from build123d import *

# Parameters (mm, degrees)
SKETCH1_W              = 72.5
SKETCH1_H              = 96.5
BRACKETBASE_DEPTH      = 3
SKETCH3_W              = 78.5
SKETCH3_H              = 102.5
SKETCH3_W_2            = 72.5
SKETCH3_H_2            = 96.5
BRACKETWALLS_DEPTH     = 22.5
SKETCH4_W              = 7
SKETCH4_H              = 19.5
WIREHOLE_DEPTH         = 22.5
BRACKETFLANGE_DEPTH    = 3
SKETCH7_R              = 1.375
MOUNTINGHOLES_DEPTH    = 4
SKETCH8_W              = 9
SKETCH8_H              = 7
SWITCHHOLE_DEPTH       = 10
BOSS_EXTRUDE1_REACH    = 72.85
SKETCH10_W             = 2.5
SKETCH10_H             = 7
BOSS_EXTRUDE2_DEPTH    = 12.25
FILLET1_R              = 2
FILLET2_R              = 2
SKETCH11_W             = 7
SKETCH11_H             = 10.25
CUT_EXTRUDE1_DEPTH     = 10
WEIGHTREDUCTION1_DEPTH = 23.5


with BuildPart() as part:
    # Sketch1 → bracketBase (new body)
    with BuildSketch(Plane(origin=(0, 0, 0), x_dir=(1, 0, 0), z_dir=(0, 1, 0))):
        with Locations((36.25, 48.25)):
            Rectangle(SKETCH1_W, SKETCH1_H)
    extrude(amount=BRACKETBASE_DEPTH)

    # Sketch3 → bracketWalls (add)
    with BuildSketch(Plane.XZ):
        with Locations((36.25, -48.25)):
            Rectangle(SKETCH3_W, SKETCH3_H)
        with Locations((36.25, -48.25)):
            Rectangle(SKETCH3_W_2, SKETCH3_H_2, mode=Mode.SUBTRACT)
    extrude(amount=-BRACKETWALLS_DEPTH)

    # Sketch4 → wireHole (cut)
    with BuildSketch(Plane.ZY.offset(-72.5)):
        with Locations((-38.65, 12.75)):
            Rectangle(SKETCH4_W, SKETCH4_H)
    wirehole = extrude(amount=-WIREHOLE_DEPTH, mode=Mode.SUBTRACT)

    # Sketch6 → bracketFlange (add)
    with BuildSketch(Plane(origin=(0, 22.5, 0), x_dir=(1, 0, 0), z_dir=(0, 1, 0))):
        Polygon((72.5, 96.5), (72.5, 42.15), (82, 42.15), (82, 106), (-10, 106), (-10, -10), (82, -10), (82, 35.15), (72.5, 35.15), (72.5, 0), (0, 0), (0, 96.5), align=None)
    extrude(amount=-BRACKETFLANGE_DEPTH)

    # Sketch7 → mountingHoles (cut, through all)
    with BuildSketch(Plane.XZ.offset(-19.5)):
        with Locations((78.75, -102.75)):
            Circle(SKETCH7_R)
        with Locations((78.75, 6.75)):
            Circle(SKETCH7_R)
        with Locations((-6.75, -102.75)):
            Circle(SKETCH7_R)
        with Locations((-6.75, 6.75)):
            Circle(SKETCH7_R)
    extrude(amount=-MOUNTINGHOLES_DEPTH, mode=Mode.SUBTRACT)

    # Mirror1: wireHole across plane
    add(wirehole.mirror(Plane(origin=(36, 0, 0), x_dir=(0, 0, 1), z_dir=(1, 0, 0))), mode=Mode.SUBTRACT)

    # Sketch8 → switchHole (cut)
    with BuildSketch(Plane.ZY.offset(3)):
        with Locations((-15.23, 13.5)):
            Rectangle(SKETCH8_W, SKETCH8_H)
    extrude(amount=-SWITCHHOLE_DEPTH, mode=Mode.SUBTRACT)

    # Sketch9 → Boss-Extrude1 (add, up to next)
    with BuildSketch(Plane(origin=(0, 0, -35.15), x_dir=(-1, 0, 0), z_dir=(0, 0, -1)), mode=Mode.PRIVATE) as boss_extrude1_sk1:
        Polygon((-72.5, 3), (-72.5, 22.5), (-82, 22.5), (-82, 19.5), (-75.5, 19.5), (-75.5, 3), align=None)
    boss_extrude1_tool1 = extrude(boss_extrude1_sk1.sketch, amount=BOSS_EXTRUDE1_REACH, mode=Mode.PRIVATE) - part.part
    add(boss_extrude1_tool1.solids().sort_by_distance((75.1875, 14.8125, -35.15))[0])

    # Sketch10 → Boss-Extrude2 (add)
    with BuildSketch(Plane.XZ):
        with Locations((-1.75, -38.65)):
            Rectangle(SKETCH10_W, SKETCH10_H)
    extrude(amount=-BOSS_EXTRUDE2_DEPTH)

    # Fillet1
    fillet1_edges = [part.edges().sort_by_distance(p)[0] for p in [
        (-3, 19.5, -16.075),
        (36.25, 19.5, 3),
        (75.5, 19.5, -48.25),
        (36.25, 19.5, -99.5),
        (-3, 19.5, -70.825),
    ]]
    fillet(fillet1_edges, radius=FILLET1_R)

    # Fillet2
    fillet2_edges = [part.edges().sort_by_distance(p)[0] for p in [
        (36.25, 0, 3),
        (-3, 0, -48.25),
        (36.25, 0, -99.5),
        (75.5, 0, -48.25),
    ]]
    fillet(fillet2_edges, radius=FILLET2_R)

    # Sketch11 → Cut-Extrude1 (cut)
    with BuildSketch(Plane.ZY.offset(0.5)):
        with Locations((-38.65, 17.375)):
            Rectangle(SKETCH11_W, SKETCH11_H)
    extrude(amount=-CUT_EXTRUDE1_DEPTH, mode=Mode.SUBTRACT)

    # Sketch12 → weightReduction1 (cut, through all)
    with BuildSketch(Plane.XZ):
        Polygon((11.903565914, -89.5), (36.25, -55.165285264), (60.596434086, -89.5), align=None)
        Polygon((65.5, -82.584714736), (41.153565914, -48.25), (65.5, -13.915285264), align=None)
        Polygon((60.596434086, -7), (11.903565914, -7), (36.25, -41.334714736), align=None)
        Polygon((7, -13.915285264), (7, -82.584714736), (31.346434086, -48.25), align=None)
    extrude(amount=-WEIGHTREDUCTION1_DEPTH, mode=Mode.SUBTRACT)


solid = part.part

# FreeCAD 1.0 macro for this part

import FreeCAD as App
import Part
import Sketcher
Q = App.Units.Quantity


def edges_at(feature, points):
    """Names of the edges that pass closest to the given points."""
    edges = feature.Shape.Edges
    near = lambda p: min(range(len(edges)), key=lambda i: edges[i].distToShape(Part.Vertex(*p))[0])
    return sorted({f"Edge{near(p) + 1}" for p in points})

doc = App.newDocument("Part")
body = doc.addObject("PartDesign::Body", "Body")

sketch1 = body.newObject("Sketcher::SketchObject", "Sketch")
sketch1.AttachmentSupport = (doc.getObject("XZ_Plane"), [""])
sketch1.MapMode = "FlatFace"
sketch1.addGeometry([
    Part.LineSegment(App.Vector(0, -96.5, 0), App.Vector(0, 0, 0)),
    Part.LineSegment(App.Vector(0, 0, 0), App.Vector(72.5, 0, 0)),
    Part.LineSegment(App.Vector(72.5, 0, 0), App.Vector(72.5, -96.5, 0)),
    Part.LineSegment(App.Vector(72.5, -96.5, 0), App.Vector(0, -96.5, 0)),
], False)
sketch1.addConstraint([
    Sketcher.Constraint("Coincident", 0, 2, 1, 1),
    Sketcher.Constraint("Coincident", 1, 2, 2, 1),
    Sketcher.Constraint("Coincident", 2, 2, 3, 1),
    Sketcher.Constraint("Coincident", 3, 2, 0, 1),
    Sketcher.Constraint("Vertical", 0),
    Sketcher.Constraint("Horizontal", 1),
    Sketcher.Constraint("Vertical", 2),
    Sketcher.Constraint("Horizontal", 3),
    Sketcher.Constraint("Coincident", 0, 2, -1, 1),
    Sketcher.Constraint("DistanceX", 1, 1, 1, 2, Q("72.5 mm")),
    Sketcher.Constraint("DistanceY", 0, 1, 0, 2, Q("96.5 mm")),
])
pad1 = body.newObject("PartDesign::Pad", "Pad")
pad1.Profile = sketch1
pad1.Length = 3
pad1.Reversed = True

sketch2 = body.newObject("Sketcher::SketchObject", "Sketch001")
sketch2.AttachmentSupport = (doc.getObject("XZ_Plane"), [""])
sketch2.MapMode = "FlatFace"
sketch2.addGeometry([
    Part.LineSegment(App.Vector(-3, 3, 0), App.Vector(-3, -99.5, 0)),
    Part.LineSegment(App.Vector(-3, -99.5, 0), App.Vector(75.5, -99.5, 0)),
    Part.LineSegment(App.Vector(75.5, -99.5, 0), App.Vector(75.5, 3, 0)),
    Part.LineSegment(App.Vector(75.5, 3, 0), App.Vector(-3, 3, 0)),
    Part.LineSegment(App.Vector(72.5, -96.5, 0), App.Vector(0, -96.5, 0)),
    Part.LineSegment(App.Vector(0, -96.5, 0), App.Vector(0, 0, 0)),
    Part.LineSegment(App.Vector(0, 0, 0), App.Vector(72.5, 0, 0)),
    Part.LineSegment(App.Vector(72.5, 0, 0), App.Vector(72.5, -96.5, 0)),
], False)
sketch2.addConstraint([
    Sketcher.Constraint("Coincident", 0, 2, 1, 1),
    Sketcher.Constraint("Coincident", 1, 2, 2, 1),
    Sketcher.Constraint("Coincident", 2, 2, 3, 1),
    Sketcher.Constraint("Coincident", 3, 2, 0, 1),
    Sketcher.Constraint("Coincident", 4, 2, 5, 1),
    Sketcher.Constraint("Coincident", 5, 2, 6, 1),
    Sketcher.Constraint("Coincident", 6, 2, 7, 1),
    Sketcher.Constraint("Coincident", 7, 2, 4, 1),
    Sketcher.Constraint("Vertical", 0),
    Sketcher.Constraint("Horizontal", 1),
    Sketcher.Constraint("Vertical", 2),
    Sketcher.Constraint("Horizontal", 3),
    Sketcher.Constraint("Horizontal", 4),
    Sketcher.Constraint("Vertical", 5),
    Sketcher.Constraint("Horizontal", 6),
    Sketcher.Constraint("Vertical", 7),
    Sketcher.Constraint("Coincident", 5, 2, -1, 1),
    Sketcher.Constraint("DistanceX", 1, 1, 1, 2, Q("78.5 mm")),
    Sketcher.Constraint("DistanceX", 4, 2, 4, 1, Q("72.5 mm")),
    Sketcher.Constraint("DistanceY", 0, 2, 0, 1, Q("102.5 mm")),
    Sketcher.Constraint("DistanceY", 5, 1, 5, 2, Q("96.5 mm")),
    Sketcher.Constraint("DistanceX", 0, 2, -1, 1, Q("3 mm")),
    Sketcher.Constraint("DistanceY", -1, 1, 2, 2, Q("3 mm")),
])
pad2 = body.newObject("PartDesign::Pad", "Pad001")
pad2.Profile = sketch2
pad2.Length = 22.5
pad2.Reversed = True

sketch3 = body.newObject("Sketcher::SketchObject", "Sketch002")
sketch3.AttachmentSupport = (doc.getObject("YZ_Plane"), [""])
sketch3.MapMode = "FlatFace"
sketch3.AttachmentOffset = App.Placement(App.Vector(0, 0, 72.5), App.Rotation())
sketch3.addGeometry([
    Part.LineSegment(App.Vector(22.5, -42.15, 0), App.Vector(3, -42.15, 0)),
    Part.LineSegment(App.Vector(3, -42.15, 0), App.Vector(3, -35.15, 0)),
    Part.LineSegment(App.Vector(3, -35.15, 0), App.Vector(22.5, -35.15, 0)),
    Part.LineSegment(App.Vector(22.5, -35.15, 0), App.Vector(22.5, -42.15, 0)),
], False)
sketch3.addConstraint([
    Sketcher.Constraint("Coincident", 0, 2, 1, 1),
    Sketcher.Constraint("Coincident", 1, 2, 2, 1),
    Sketcher.Constraint("Coincident", 2, 2, 3, 1),
    Sketcher.Constraint("Coincident", 3, 2, 0, 1),
    Sketcher.Constraint("Horizontal", 0),
    Sketcher.Constraint("Vertical", 1),
    Sketcher.Constraint("Horizontal", 2),
    Sketcher.Constraint("Vertical", 3),
    Sketcher.Constraint("DistanceY", 1, 1, 1, 2, Q("7 mm")),
    Sketcher.Constraint("DistanceX", 0, 2, 0, 1, Q("19.5 mm")),
    Sketcher.Constraint("DistanceX", -1, 1, 0, 2, Q("3 mm")),
    Sketcher.Constraint("DistanceY", 0, 2, -1, 1, Q("42.15 mm")),
])
pocket1 = body.newObject("PartDesign::Pocket", "Pocket")
pocket1.Profile = sketch3
pocket1.Length = 22.5
pocket1.Reversed = True

sketch4 = body.newObject("Sketcher::SketchObject", "Sketch003")
sketch4.AttachmentSupport = (doc.getObject("XZ_Plane"), [""])
sketch4.MapMode = "FlatFace"
sketch4.AttachmentOffset = App.Placement(App.Vector(0, 0, -22.5), App.Rotation())
sketch4.addGeometry([
    Part.LineSegment(App.Vector(72.5, -96.5, 0), App.Vector(72.5, -42.15, 0)),
    Part.LineSegment(App.Vector(72.5, -42.15, 0), App.Vector(82, -42.15, 0)),
    Part.LineSegment(App.Vector(82, -42.15, 0), App.Vector(82, -106, 0)),
    Part.LineSegment(App.Vector(82, -106, 0), App.Vector(-10, -106, 0)),
    Part.LineSegment(App.Vector(-10, -106, 0), App.Vector(-10, 10, 0)),
    Part.LineSegment(App.Vector(-10, 10, 0), App.Vector(82, 10, 0)),
    Part.LineSegment(App.Vector(82, 10, 0), App.Vector(82, -35.15, 0)),
    Part.LineSegment(App.Vector(82, -35.15, 0), App.Vector(72.5, -35.15, 0)),
    Part.LineSegment(App.Vector(72.5, -35.15, 0), App.Vector(72.5, 0, 0)),
    Part.LineSegment(App.Vector(72.5, 0, 0), App.Vector(0, 0, 0)),
    Part.LineSegment(App.Vector(0, 0, 0), App.Vector(0, -96.5, 0)),
    Part.LineSegment(App.Vector(0, -96.5, 0), App.Vector(72.5, -96.5, 0)),
], False)
sketch4.addConstraint([
    Sketcher.Constraint("Coincident", 0, 2, 1, 1),
    Sketcher.Constraint("Coincident", 1, 2, 2, 1),
    Sketcher.Constraint("Coincident", 2, 2, 3, 1),
    Sketcher.Constraint("Coincident", 3, 2, 4, 1),
    Sketcher.Constraint("Coincident", 4, 2, 5, 1),
    Sketcher.Constraint("Coincident", 5, 2, 6, 1),
    Sketcher.Constraint("Coincident", 6, 2, 7, 1),
    Sketcher.Constraint("Coincident", 7, 2, 8, 1),
    Sketcher.Constraint("Coincident", 8, 2, 9, 1),
    Sketcher.Constraint("Coincident", 9, 2, 10, 1),
    Sketcher.Constraint("Coincident", 10, 2, 11, 1),
    Sketcher.Constraint("Coincident", 11, 2, 0, 1),
    Sketcher.Constraint("Vertical", 0),
    Sketcher.Constraint("Horizontal", 1),
    Sketcher.Constraint("Vertical", 2),
    Sketcher.Constraint("Horizontal", 3),
    Sketcher.Constraint("Vertical", 4),
    Sketcher.Constraint("Horizontal", 5),
    Sketcher.Constraint("Vertical", 6),
    Sketcher.Constraint("Horizontal", 7),
    Sketcher.Constraint("Vertical", 8),
    Sketcher.Constraint("Horizontal", 9),
    Sketcher.Constraint("Vertical", 10),
    Sketcher.Constraint("Horizontal", 11),
    Sketcher.Constraint("Coincident", 9, 2, -1, 1),
    Sketcher.Constraint("Vertical", 2, 2, 5, 2),
    Sketcher.Constraint("Vertical", 0, 2, 7, 2),
    Sketcher.Constraint("DistanceX", 3, 2, 3, 1, Q("92 mm")),
    Sketcher.Constraint("DistanceY", 4, 1, 4, 2, Q("116 mm")),
    Sketcher.Constraint("DistanceX", 1, 1, 1, 2, Q("9.5 mm")),
    Sketcher.Constraint("DistanceX", 9, 2, 9, 1, Q("72.5 mm")),
    Sketcher.Constraint("DistanceY", 10, 2, 10, 1, Q("96.5 mm")),
    Sketcher.Constraint("DistanceY", 2, 2, -1, 1, Q("106 mm")),
    Sketcher.Constraint("DistanceY", 1, 2, 6, 2, Q("7 mm")),
    Sketcher.Constraint("DistanceY", 0, 1, 0, 2, Q("54.35 mm")),
])
pad3 = body.newObject("PartDesign::Pad", "Pad002")
pad3.Profile = sketch4
pad3.Length = 3

sketch5 = body.newObject("Sketcher::SketchObject", "Sketch004")
sketch5.AttachmentSupport = (doc.getObject("XZ_Plane"), [""])
sketch5.MapMode = "FlatFace"
sketch5.AttachmentOffset = App.Placement(App.Vector(0, 0, -19.5), App.Rotation())
sketch5.addGeometry([
    Part.Circle(App.Vector(78.75, -102.75, 0), App.Vector(0, 0, 1), 1.375),
    Part.Circle(App.Vector(78.75, 6.75, 0), App.Vector(0, 0, 1), 1.375),
    Part.Circle(App.Vector(-6.75, -102.75, 0), App.Vector(0, 0, 1), 1.375),
    Part.Circle(App.Vector(-6.75, 6.75, 0), App.Vector(0, 0, 1), 1.375),
], False)
sketch5.addConstraint([
    Sketcher.Constraint("Equal", 0, 1),
    Sketcher.Constraint("Equal", 1, 2),
    Sketcher.Constraint("Equal", 2, 3),
    Sketcher.Constraint("Horizontal", 0, 3, 2, 3),
    Sketcher.Constraint("Horizontal", 1, 3, 3, 3),
    Sketcher.Constraint("Vertical", 0, 3, 1, 3),
    Sketcher.Constraint("Vertical", 2, 3, 3, 3),
    Sketcher.Constraint("Diameter", 0, Q("2.75 mm")),
    Sketcher.Constraint("DistanceY", 0, 3, 1, 3, Q("109.5 mm")),
    Sketcher.Constraint("DistanceX", 2, 3, 0, 3, Q("85.5 mm")),
    Sketcher.Constraint("DistanceX", -1, 1, 0, 3, Q("78.75 mm")),
    Sketcher.Constraint("DistanceY", 0, 3, -1, 1, Q("102.75 mm")),
])
pocket2 = body.newObject("PartDesign::Pocket", "Pocket001")
pocket2.Profile = sketch5
pocket2.Type = "ThroughAll"
doc.recompute()

datumplane = body.newObject("PartDesign::Plane", "DatumPlane")
datumplane.AttachmentSupport = (doc.getObject("YZ_Plane"), [""])
datumplane.MapMode = "FlatFace"
datumplane.AttachmentOffset = App.Placement(App.Vector(0, 0, 36), App.Rotation())
mirrored = body.newObject("PartDesign::Mirrored", "Mirrored")
mirrored.Originals = [pocket1]
mirrored.MirrorPlane = (datumplane, [""])
body.Tip = mirrored

sketch6 = body.newObject("Sketcher::SketchObject", "Sketch005")
sketch6.AttachmentSupport = (doc.getObject("YZ_Plane"), [""])
sketch6.MapMode = "FlatFace"
sketch6.AttachmentOffset = App.Placement(App.Vector(0, 0, -3), App.Rotation())
sketch6.addGeometry([
    Part.LineSegment(App.Vector(17, -19.73, 0), App.Vector(10, -19.73, 0)),
    Part.LineSegment(App.Vector(10, -19.73, 0), App.Vector(10, -10.73, 0)),
    Part.LineSegment(App.Vector(10, -10.73, 0), App.Vector(17, -10.73, 0)),
    Part.LineSegment(App.Vector(17, -10.73, 0), App.Vector(17, -19.73, 0)),
], False)
sketch6.addConstraint([
    Sketcher.Constraint("Coincident", 0, 2, 1, 1),
    Sketcher.Constraint("Coincident", 1, 2, 2, 1),
    Sketcher.Constraint("Coincident", 2, 2, 3, 1),
    Sketcher.Constraint("Coincident", 3, 2, 0, 1),
    Sketcher.Constraint("Horizontal", 0),
    Sketcher.Constraint("Vertical", 1),
    Sketcher.Constraint("Horizontal", 2),
    Sketcher.Constraint("Vertical", 3),
    Sketcher.Constraint("DistanceX", 0, 2, 0, 1, Q("7 mm")),
    Sketcher.Constraint("DistanceY", 1, 1, 1, 2, Q("9 mm")),
    Sketcher.Constraint("DistanceX", -1, 1, 0, 2, Q("10 mm")),
    Sketcher.Constraint("DistanceY", 0, 2, -1, 1, Q("19.73 mm")),
])
pocket3 = body.newObject("PartDesign::Pocket", "Pocket002")
pocket3.Profile = sketch6
pocket3.Length = 10
pocket3.Reversed = True

sketch7 = body.newObject("Sketcher::SketchObject", "Sketch006")
sketch7.AttachmentSupport = (doc.getObject("XY_Plane"), [""])
sketch7.MapMode = "FlatFace"
sketch7.AttachmentOffset = App.Placement(App.Vector(0, 0, -35.15), App.Rotation())
sketch7.addGeometry([
    Part.LineSegment(App.Vector(72.5, 3, 0), App.Vector(72.5, 22.5, 0)),
    Part.LineSegment(App.Vector(72.5, 22.5, 0), App.Vector(82, 22.5, 0)),
    Part.LineSegment(App.Vector(82, 22.5, 0), App.Vector(82, 19.5, 0)),
    Part.LineSegment(App.Vector(82, 19.5, 0), App.Vector(75.5, 19.5, 0)),
    Part.LineSegment(App.Vector(75.5, 19.5, 0), App.Vector(75.5, 3, 0)),
    Part.LineSegment(App.Vector(75.5, 3, 0), App.Vector(72.5, 3, 0)),
], False)
sketch7.addConstraint([
    Sketcher.Constraint("Coincident", 0, 2, 1, 1),
    Sketcher.Constraint("Coincident", 1, 2, 2, 1),
    Sketcher.Constraint("Coincident", 2, 2, 3, 1),
    Sketcher.Constraint("Coincident", 3, 2, 4, 1),
    Sketcher.Constraint("Coincident", 4, 2, 5, 1),
    Sketcher.Constraint("Coincident", 5, 2, 0, 1),
    Sketcher.Constraint("Vertical", 0),
    Sketcher.Constraint("Horizontal", 1),
    Sketcher.Constraint("Vertical", 2),
    Sketcher.Constraint("Horizontal", 3),
    Sketcher.Constraint("Vertical", 4),
    Sketcher.Constraint("Horizontal", 5),
    Sketcher.Constraint("Equal", 5, 2),
    Sketcher.Constraint("DistanceX", 5, 2, 5, 1, Q("3 mm")),
    Sketcher.Constraint("DistanceX", 1, 1, 1, 2, Q("9.5 mm")),
    Sketcher.Constraint("DistanceY", 0, 1, 0, 2, Q("19.5 mm")),
    Sketcher.Constraint("DistanceX", -1, 1, 1, 2, Q("82 mm")),
    Sketcher.Constraint("DistanceY", -1, 1, 4, 2, Q("3 mm")),
])
pad4 = body.newObject("PartDesign::Pad", "Pad003")
pad4.Profile = sketch7
pad4.Type = "UpToFirst"
pad4.Reversed = True

sketch8 = body.newObject("Sketcher::SketchObject", "Sketch007")
sketch8.AttachmentSupport = (doc.getObject("XZ_Plane"), [""])
sketch8.MapMode = "FlatFace"
sketch8.addGeometry([
    Part.LineSegment(App.Vector(-3, -35.15, 0), App.Vector(-3, -42.15, 0)),
    Part.LineSegment(App.Vector(-3, -42.15, 0), App.Vector(-0.5, -42.15, 0)),
    Part.LineSegment(App.Vector(-0.5, -42.15, 0), App.Vector(-0.5, -35.15, 0)),
    Part.LineSegment(App.Vector(-0.5, -35.15, 0), App.Vector(-3, -35.15, 0)),
], False)
sketch8.addConstraint([
    Sketcher.Constraint("Coincident", 0, 2, 1, 1),
    Sketcher.Constraint("Coincident", 1, 2, 2, 1),
    Sketcher.Constraint("Coincident", 2, 2, 3, 1),
    Sketcher.Constraint("Coincident", 3, 2, 0, 1),
    Sketcher.Constraint("Vertical", 0),
    Sketcher.Constraint("Horizontal", 1),
    Sketcher.Constraint("Vertical", 2),
    Sketcher.Constraint("Horizontal", 3),
    Sketcher.Constraint("DistanceY", 0, 2, 0, 1, Q("7 mm")),
    Sketcher.Constraint("DistanceX", 1, 1, 1, 2, Q("2.5 mm")),
    Sketcher.Constraint("DistanceX", 0, 2, -1, 1, Q("3 mm")),
    Sketcher.Constraint("DistanceY", 0, 2, -1, 1, Q("42.15 mm")),
])
pad5 = body.newObject("PartDesign::Pad", "Pad004")
pad5.Profile = sketch8
pad5.Length = 12.25
pad5.Reversed = True
doc.recompute()

fillet = body.newObject("PartDesign::Fillet", "Fillet")
fillet.Base = (pad5, edges_at(pad5, [
    (-3, 19.5, -16.075),
    (36.25, 19.5, 3),
    (75.5, 19.5, -48.25),
    (36.25, 19.5, -99.5),
    (-3, 19.5, -70.825),
]))
fillet.Radius = 2
doc.recompute()

fillet2 = body.newObject("PartDesign::Fillet", "Fillet001")
fillet2.Base = (fillet, edges_at(fillet, [
    (36.25, 0, 3),
    (-3, 0, -48.25),
    (36.25, 0, -99.5),
    (75.5, 0, -48.25),
]))
fillet2.Radius = 2

sketch9 = body.newObject("Sketcher::SketchObject", "Sketch008")
sketch9.AttachmentSupport = (doc.getObject("YZ_Plane"), [""])
sketch9.MapMode = "FlatFace"
sketch9.AttachmentOffset = App.Placement(App.Vector(0, 0, -0.5), App.Rotation())
sketch9.addGeometry([
    Part.LineSegment(App.Vector(22.5, -42.15, 0), App.Vector(12.25, -42.15, 0)),
    Part.LineSegment(App.Vector(12.25, -42.15, 0), App.Vector(12.25, -35.15, 0)),
    Part.LineSegment(App.Vector(12.25, -35.15, 0), App.Vector(22.5, -35.15, 0)),
    Part.LineSegment(App.Vector(22.5, -35.15, 0), App.Vector(22.5, -42.15, 0)),
], False)
sketch9.addConstraint([
    Sketcher.Constraint("Coincident", 0, 2, 1, 1),
    Sketcher.Constraint("Coincident", 1, 2, 2, 1),
    Sketcher.Constraint("Coincident", 2, 2, 3, 1),
    Sketcher.Constraint("Coincident", 3, 2, 0, 1),
    Sketcher.Constraint("Horizontal", 0),
    Sketcher.Constraint("Vertical", 1),
    Sketcher.Constraint("Horizontal", 2),
    Sketcher.Constraint("Vertical", 3),
    Sketcher.Constraint("DistanceY", 1, 1, 1, 2, Q("7 mm")),
    Sketcher.Constraint("DistanceX", 0, 2, 0, 1, Q("10.25 mm")),
    Sketcher.Constraint("DistanceX", -1, 1, 2, 2, Q("22.5 mm")),
    Sketcher.Constraint("DistanceY", 0, 2, -1, 1, Q("42.15 mm")),
])
pocket4 = body.newObject("PartDesign::Pocket", "Pocket003")
pocket4.Profile = sketch9
pocket4.Length = 10
pocket4.Reversed = True

sketch10 = body.newObject("Sketcher::SketchObject", "Sketch009")
sketch10.AttachmentSupport = (doc.getObject("XZ_Plane"), [""])
sketch10.MapMode = "FlatFace"
sketch10.addGeometry([
    Part.LineSegment(App.Vector(36.25, -55.165285, 0), App.Vector(11.903566, -89.5, 0)),
    Part.LineSegment(App.Vector(11.903566, -89.5, 0), App.Vector(60.596434, -89.5, 0)),
    Part.LineSegment(App.Vector(60.596434, -89.5, 0), App.Vector(36.25, -55.165285, 0)),
    Part.LineSegment(App.Vector(41.153566, -48.25, 0), App.Vector(65.5, -82.584715, 0)),
    Part.LineSegment(App.Vector(65.5, -82.584715, 0), App.Vector(65.5, -13.915285, 0)),
    Part.LineSegment(App.Vector(65.5, -13.915285, 0), App.Vector(41.153566, -48.25, 0)),
    Part.LineSegment(App.Vector(60.596434, -7, 0), App.Vector(11.903566, -7, 0)),
    Part.LineSegment(App.Vector(11.903566, -7, 0), App.Vector(36.25, -41.334715, 0)),
    Part.LineSegment(App.Vector(36.25, -41.334715, 0), App.Vector(60.596434, -7, 0)),
    Part.LineSegment(App.Vector(7, -13.915285, 0), App.Vector(7, -82.584715, 0)),
    Part.LineSegment(App.Vector(7, -82.584715, 0), App.Vector(31.346434, -48.25, 0)),
    Part.LineSegment(App.Vector(31.346434, -48.25, 0), App.Vector(7, -13.915285, 0)),
], False)
sketch10.addConstraint([
    Sketcher.Constraint("Coincident", 0, 2, 1, 1),
    Sketcher.Constraint("Coincident", 1, 2, 2, 1),
    Sketcher.Constraint("Coincident", 2, 2, 0, 1),
    Sketcher.Constraint("Coincident", 3, 2, 4, 1),
    Sketcher.Constraint("Coincident", 4, 2, 5, 1),
    Sketcher.Constraint("Coincident", 5, 2, 3, 1),
    Sketcher.Constraint("Coincident", 6, 2, 7, 1),
    Sketcher.Constraint("Coincident", 7, 2, 8, 1),
    Sketcher.Constraint("Coincident", 8, 2, 6, 1),
    Sketcher.Constraint("Coincident", 9, 2, 10, 1),
    Sketcher.Constraint("Coincident", 10, 2, 11, 1),
    Sketcher.Constraint("Coincident", 11, 2, 9, 1),
    Sketcher.Constraint("Horizontal", 1),
    Sketcher.Constraint("Vertical", 4),
    Sketcher.Constraint("Horizontal", 6),
    Sketcher.Constraint("Vertical", 9),
    Sketcher.Constraint("Parallel", 2, 3),
    Sketcher.Constraint("Parallel", 0, 5),
    Sketcher.Constraint("Parallel", 3, 7),
    Sketcher.Constraint("Parallel", 5, 8),
    Sketcher.Constraint("Parallel", 8, 10),
    Sketcher.Constraint("Parallel", 7, 11),
    Sketcher.Constraint("Horizontal", 3, 2, 9, 2),
    Sketcher.Constraint("Horizontal", 5, 2, 10, 2),
    Sketcher.Constraint("Horizontal", 4, 2, 11, 2),
    Sketcher.Constraint("Vertical", 0, 2, 6, 2),
    Sketcher.Constraint("Vertical", 2, 2, 7, 2),
    Sketcher.Constraint("Equal", 2, 3),
    Sketcher.Constraint("DistanceY", 6, 2, -1, 1, Q("7 mm")),
    Sketcher.Constraint("DistanceX", -1, 1, 9, 2, Q("7 mm")),
    Sketcher.Constraint("DistanceY", 0, 2, -1, 1, Q("89.5 mm")),
    Sketcher.Constraint("DistanceX", -1, 1, 3, 2, Q("65.5 mm")),
    Sketcher.Constraint("DistanceX", -1, 1, 2, 2, Q("36.25 mm")),
    Sketcher.Constraint("DistanceY", 5, 2, -1, 1, Q("48.25 mm")),
    Sketcher.Constraint("DistanceX", 1, 1, 1, 2, Q("48.692868 mm")),
    Sketcher.Constraint("DistanceY", 4, 1, 4, 2, Q("68.669429 mm")),
])
pocket5 = body.newObject("PartDesign::Pocket", "Pocket004")
pocket5.Profile = sketch10
pocket5.Type = "ThroughAll"

doc.recompute()
